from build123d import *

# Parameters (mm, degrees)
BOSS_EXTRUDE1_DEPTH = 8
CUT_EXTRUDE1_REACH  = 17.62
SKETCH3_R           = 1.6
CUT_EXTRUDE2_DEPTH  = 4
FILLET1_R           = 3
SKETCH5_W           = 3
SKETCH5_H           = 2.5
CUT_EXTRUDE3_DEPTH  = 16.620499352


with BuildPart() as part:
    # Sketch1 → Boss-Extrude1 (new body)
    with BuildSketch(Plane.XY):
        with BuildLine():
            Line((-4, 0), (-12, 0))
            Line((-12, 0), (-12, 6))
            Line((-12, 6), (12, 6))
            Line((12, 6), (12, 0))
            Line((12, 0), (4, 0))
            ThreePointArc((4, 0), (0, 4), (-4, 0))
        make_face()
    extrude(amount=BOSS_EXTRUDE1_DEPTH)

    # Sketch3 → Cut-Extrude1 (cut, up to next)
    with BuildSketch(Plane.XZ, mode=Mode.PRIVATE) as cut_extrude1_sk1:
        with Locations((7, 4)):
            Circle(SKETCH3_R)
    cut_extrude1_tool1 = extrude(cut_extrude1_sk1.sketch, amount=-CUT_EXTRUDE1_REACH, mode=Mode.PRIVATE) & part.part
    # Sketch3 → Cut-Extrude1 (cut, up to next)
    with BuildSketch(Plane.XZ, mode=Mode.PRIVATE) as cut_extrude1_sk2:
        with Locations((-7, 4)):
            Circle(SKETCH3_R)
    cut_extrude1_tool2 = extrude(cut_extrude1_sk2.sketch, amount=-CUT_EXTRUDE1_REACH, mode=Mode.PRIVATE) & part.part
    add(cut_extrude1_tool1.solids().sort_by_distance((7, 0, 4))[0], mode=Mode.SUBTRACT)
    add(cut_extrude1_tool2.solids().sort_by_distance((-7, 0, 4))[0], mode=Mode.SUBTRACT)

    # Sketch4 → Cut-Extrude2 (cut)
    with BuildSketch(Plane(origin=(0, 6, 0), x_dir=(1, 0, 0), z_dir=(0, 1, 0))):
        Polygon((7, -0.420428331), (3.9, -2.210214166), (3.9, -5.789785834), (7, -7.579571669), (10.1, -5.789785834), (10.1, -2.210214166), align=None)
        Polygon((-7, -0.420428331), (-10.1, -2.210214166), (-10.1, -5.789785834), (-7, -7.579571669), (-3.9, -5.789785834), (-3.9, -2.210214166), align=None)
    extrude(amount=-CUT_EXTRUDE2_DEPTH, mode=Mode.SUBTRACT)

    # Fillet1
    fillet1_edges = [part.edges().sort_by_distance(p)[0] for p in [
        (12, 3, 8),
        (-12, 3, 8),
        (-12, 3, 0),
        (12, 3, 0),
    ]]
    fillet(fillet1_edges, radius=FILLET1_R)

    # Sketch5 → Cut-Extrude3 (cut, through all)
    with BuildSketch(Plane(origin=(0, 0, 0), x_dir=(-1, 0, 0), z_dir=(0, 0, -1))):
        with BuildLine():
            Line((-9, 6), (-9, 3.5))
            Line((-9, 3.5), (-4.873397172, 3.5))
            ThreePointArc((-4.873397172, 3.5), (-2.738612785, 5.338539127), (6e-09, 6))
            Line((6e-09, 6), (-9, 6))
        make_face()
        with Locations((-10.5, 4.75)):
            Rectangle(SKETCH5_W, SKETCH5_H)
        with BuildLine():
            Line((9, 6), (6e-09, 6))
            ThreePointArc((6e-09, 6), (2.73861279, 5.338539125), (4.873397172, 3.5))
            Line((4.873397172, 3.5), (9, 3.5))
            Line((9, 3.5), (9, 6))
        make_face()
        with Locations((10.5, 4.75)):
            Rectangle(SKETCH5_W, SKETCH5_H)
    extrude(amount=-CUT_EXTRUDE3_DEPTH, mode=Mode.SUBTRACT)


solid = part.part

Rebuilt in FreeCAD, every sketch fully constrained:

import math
import FreeCAD as App
import Part
import Sketcher
from FreeCAD import Vector
Q = App.Units.Quantity


def edges_at(feature, points):
    """Names of the edges that pass closest to the given points."""
    edges = feature.Shape.Edges
    near = lambda p: min(range(len(edges)), key=lambda i: edges[i].distToShape(Part.Vertex(*p))[0])
    return sorted({f"Edge{near(p) + 1}" for p in points})

doc = App.newDocument("Part")
body = doc.addObject("PartDesign::Body", "Body")

sketch1 = doc.addObject("Sketcher::SketchObject", "Sketch")
body.addObject(sketch1)
sketch1.AttachmentSupport = (doc.XY_Plane, [""])
sketch1.MapMode = "FlatFace"
sketch1.addGeometry([
    Part.LineSegment(Vector(-12, 0, 0), Vector(-4, 0, 0)),
    Part.ArcOfCircle(Part.Circle(Vector(0, 0, 0), Vector(0, 0, 1), 4), math.radians(0), math.radians(180)),
    Part.LineSegment(Vector(4, 0, 0), Vector(12, 0, 0)),
    Part.LineSegment(Vector(12, 0, 0), Vector(12, 6, 0)),
    Part.LineSegment(Vector(12, 6, 0), Vector(-12, 6, 0)),
    Part.LineSegment(Vector(-12, 6, 0), Vector(-12, 0, 0)),
], False)
sketch1.addConstraint([
    Sketcher.Constraint("Coincident", 0, 2, 1, 2),
    Sketcher.Constraint("Coincident", 1, 1, 2, 1),
    Sketcher.Constraint("Coincident", 2, 2, 3, 1),
    Sketcher.Constraint("Coincident", 3, 2, 4, 1),
    Sketcher.Constraint("Coincident", 4, 2, 5, 1),
    Sketcher.Constraint("Coincident", 5, 2, 0, 1),
    Sketcher.Constraint("Horizontal", 0),
    Sketcher.Constraint("Horizontal", 2),
    Sketcher.Constraint("Vertical", 3),
    Sketcher.Constraint("Horizontal", 4),
    Sketcher.Constraint("Vertical", 5),
    Sketcher.Constraint("Coincident", 1, 3, -1, 1),
    Sketcher.Constraint("Symmetric", 2, 2, 5, 2, -1, 1),
    Sketcher.Constraint("PointOnObject", 0, 2, -1),
    Sketcher.Constraint("Radius", 1, Q("4 mm")),
    Sketcher.Constraint("DistanceX", 0, 1, 0, 2, Q("8 mm")),
    Sketcher.Constraint("DistanceY", 3, 1, 3, 2, Q("6 mm")),
])
pad1 = doc.addObject("PartDesign::Pad", "Pad")
body.addObject(pad1)
pad1.Profile = sketch1
pad1.Length = 8

sketch2 = doc.addObject("Sketcher::SketchObject", "Sketch001")
body.addObject(sketch2)
sketch2.AttachmentSupport = (doc.XZ_Plane, [""])
sketch2.MapMode = "FlatFace"
sketch2.addGeometry(Part.Circle(Vector(7, 4, 0), Vector(0, 0, 1), 1.6), False)
sketch2.addConstraint([
    Sketcher.Constraint("Diameter", 0, Q("3.2 mm")),
    Sketcher.Constraint("DistanceX", -1, 1, 0, 3, Q("7 mm")),
    Sketcher.Constraint("DistanceY", -1, 1, 0, 3, Q("4 mm")),
])
pocket1 = doc.addObject("PartDesign::Pocket", "Pocket")
body.addObject(pocket1)
pocket1.Profile = sketch2
pocket1.Type = "UpToFirst"

sketch3 = doc.addObject("Sketcher::SketchObject", "Sketch002")
body.addObject(sketch3)
sketch3.AttachmentSupport = (doc.XZ_Plane, [""])
sketch3.MapMode = "FlatFace"
sketch3.addGeometry(Part.Circle(Vector(-7, 4, 0), Vector(0, 0, 1), 1.6), False)
sketch3.addConstraint([
    Sketcher.Constraint("Diameter", 0, Q("3.2 mm")),
    Sketcher.Constraint("DistanceX", 0, 3, -1, 1, Q("7 mm")),
    Sketcher.Constraint("DistanceY", -1, 1, 0, 3, Q("4 mm")),
])
pocket2 = doc.addObject("PartDesign::Pocket", "Pocket001")
body.addObject(pocket2)
pocket2.Profile = sketch3
pocket2.Type = "UpToFirst"

sketch4 = doc.addObject("Sketcher::SketchObject", "Sketch003")
body.addObject(sketch4)
sketch4.AttachmentSupport = (doc.XZ_Plane, [""])
sketch4.MapMode = "FlatFace"
sketch4.AttachmentOffset = App.Placement(Vector(0, 0, -6), App.Rotation())
sketch4.addGeometry([
    Part.LineSegment(Vector(7, 0.4, 0), Vector(3.9, 2.2, 0)),
    Part.LineSegment(Vector(3.9, 2.2, 0), Vector(3.9, 5.8, 0)),
    Part.LineSegment(Vector(3.9, 5.8, 0), Vector(7, 7.6, 0)),
    Part.LineSegment(Vector(7, 7.6, 0), Vector(10.1, 5.8, 0)),
    Part.LineSegment(Vector(10.1, 5.8, 0), Vector(10.1, 2.2, 0)),
    Part.LineSegment(Vector(10.1, 2.2, 0), Vector(7, 0.4, 0)),
    Part.LineSegment(Vector(-7, 0.4, 0), Vector(-10.1, 2.2, 0)),
    Part.LineSegment(Vector(-10.1, 2.2, 0), Vector(-10.1, 5.8, 0)),
    Part.LineSegment(Vector(-10.1, 5.8, 0), Vector(-7, 7.6, 0)),
    Part.LineSegment(Vector(-7, 7.6, 0), Vector(-3.9, 5.8, 0)),
    Part.LineSegment(Vector(-3.9, 5.8, 0), Vector(-3.9, 2.2, 0)),
    Part.LineSegment(Vector(-3.9, 2.2, 0), Vector(-7, 0.4, 0)),
], False)
sketch4.addConstraint([
    Sketcher.Constraint("Coincident", 0, 2, 1, 1),
    Sketcher.Constraint("Coincident", 1, 2, 2, 1),
    Sketcher.Constraint("Coincident", 2, 2, 3, 1),
    Sketcher.Constraint("Coincident", 3, 2, 4, 1),
    Sketcher.Constraint("Coincident", 4, 2, 5, 1),
    Sketcher.Constraint("Coincident", 5, 2, 0, 1),
    Sketcher.Constraint("Coincident", 6, 2, 7, 1),
    Sketcher.Constraint("Coincident", 7, 2, 8, 1),
    Sketcher.Constraint("Coincident", 8, 2, 9, 1),
    Sketcher.Constraint("Coincident", 9, 2, 10, 1),
    Sketcher.Constraint("Coincident", 10, 2, 11, 1),
    Sketcher.Constraint("Coincident", 11, 2, 6, 1),
    Sketcher.Constraint("Vertical", 1),
    Sketcher.Constraint("Vertical", 4),
    Sketcher.Constraint("Vertical", 7),
    Sketcher.Constraint("Vertical", 10),
    Sketcher.Constraint("Symmetric", 4, 2, 6, 2, -2),
    Sketcher.Constraint("Symmetric", 2, 2, 8, 2, -2),
    Sketcher.Constraint("Symmetric", 1, 2, 9, 2, -2),
    Sketcher.Constraint("Symmetric", 5, 2, 11, 2, -2),
    Sketcher.Constraint("Parallel", 0, 3),
    Sketcher.Constraint("Parallel", 2, 5),
    Sketcher.Constraint("Parallel", 3, 6),
    Sketcher.Constraint("Parallel", 5, 8),
    Sketcher.Constraint("Parallel", 8, 11),
    Sketcher.Constraint("Horizontal", 1, 2, 3, 2),
    Sketcher.Constraint("Horizontal", 0, 2, 4, 2),
    Sketcher.Constraint("Angle", 0, Q("150 deg")),
    Sketcher.Constraint("DistanceX", -1, 1, 2, 2, Q("7 mm")),
    Sketcher.Constraint("DistanceX", -1, 1, 0, 2, Q("3.9 mm")),
    Sketcher.Constraint("DistanceY", 1, 1, 1, 2, Q("3.579572 mm")),
    Sketcher.Constraint("DistanceY", -1, 1, 2, 2, Q("7.579572 mm")),
])
pocket3 = doc.addObject("PartDesign::Pocket", "Pocket002")
body.addObject(pocket3)
pocket3.Profile = sketch4
pocket3.Length = 4
pocket3.Reversed = True
doc.recompute()

fillet = doc.addObject("PartDesign::Fillet", "Fillet")
body.addObject(fillet)
fillet.Base = (pocket3, edges_at(pocket3, [
    (12, 3, 8),
    (-12, 3, 8),
    (-12, 3, 0),
    (12, 3, 0),
]))
fillet.Radius = 3

sketch5 = doc.addObject("Sketcher::SketchObject", "Sketch004")
body.addObject(sketch5)
sketch5.AttachmentSupport = (doc.XY_Plane, [""])
sketch5.MapMode = "FlatFace"
sketch5.addGeometry([
    Part.ArcOfCircle(Part.Circle(Vector(0, 0, 0), Vector(0, 0, 1), 6), math.radians(36), math.radians(90)),
    Part.LineSegment(Vector(0, 6, 0), Vector(12, 6, 0)),
    Part.LineSegment(Vector(12, 6, 0), Vector(12, 3.5, 0)),
    Part.LineSegment(Vector(12, 3.5, 0), Vector(4.9, 3.5, 0)),
    Part.ArcOfCircle(Part.Circle(Vector(0, 0, 0), Vector(0, 0, 1), 6), math.radians(90), math.radians(144)),
    Part.LineSegment(Vector(-4.9, 3.5, 0), Vector(-12, 3.5, 0)),
    Part.LineSegment(Vector(-12, 3.5, 0), Vector(-12, 6, 0)),
    Part.LineSegment(Vector(-12, 6, 0), Vector(0, 6, 0)),
], False)
sketch5.addConstraint([
    Sketcher.Constraint("Tangent", 0, 2, 1, 1),
    Sketcher.Constraint("Coincident", 1, 2, 2, 1),
    Sketcher.Constraint("Coincident", 2, 2, 3, 1),
    Sketcher.Constraint("Coincident", 3, 2, 0, 1),
    Sketcher.Constraint("Coincident", 4, 2, 5, 1),
    Sketcher.Constraint("Coincident", 5, 2, 6, 1),
    Sketcher.Constraint("Coincident", 6, 2, 7, 1),
    Sketcher.Constraint("Tangent", 7, 2, 4, 1),
    Sketcher.Constraint("Horizontal", 1),
    Sketcher.Constraint("Vertical", 2),
    Sketcher.Constraint("Horizontal", 3),
    Sketcher.Constraint("Horizontal", 5),
    Sketcher.Constraint("Vertical", 6),
    Sketcher.Constraint("Horizontal", 7),
    Sketcher.Constraint("Coincident", 0, 3, -1, 1),
    Sketcher.Constraint("Coincident", 4, 3, -1, 1),
    Sketcher.Constraint("Equal", 0, 4),
    Sketcher.Constraint("Symmetric", 2, 2, 5, 2, -2),
    Sketcher.Constraint("Radius", 0, Q("6 mm")),
    Sketcher.Constraint("DistanceX", 1, 1, 1, 2, Q("12 mm")),
    Sketcher.Constraint("DistanceY", 2, 2, 2, 1, Q("2.5 mm")),
])
pocket4 = doc.addObject("PartDesign::Pocket", "Pocket003")
body.addObject(pocket4)
pocket4.Profile = sketch5
pocket4.Type = "ThroughAll"
pocket4.Reversed = True

doc.recompute()
